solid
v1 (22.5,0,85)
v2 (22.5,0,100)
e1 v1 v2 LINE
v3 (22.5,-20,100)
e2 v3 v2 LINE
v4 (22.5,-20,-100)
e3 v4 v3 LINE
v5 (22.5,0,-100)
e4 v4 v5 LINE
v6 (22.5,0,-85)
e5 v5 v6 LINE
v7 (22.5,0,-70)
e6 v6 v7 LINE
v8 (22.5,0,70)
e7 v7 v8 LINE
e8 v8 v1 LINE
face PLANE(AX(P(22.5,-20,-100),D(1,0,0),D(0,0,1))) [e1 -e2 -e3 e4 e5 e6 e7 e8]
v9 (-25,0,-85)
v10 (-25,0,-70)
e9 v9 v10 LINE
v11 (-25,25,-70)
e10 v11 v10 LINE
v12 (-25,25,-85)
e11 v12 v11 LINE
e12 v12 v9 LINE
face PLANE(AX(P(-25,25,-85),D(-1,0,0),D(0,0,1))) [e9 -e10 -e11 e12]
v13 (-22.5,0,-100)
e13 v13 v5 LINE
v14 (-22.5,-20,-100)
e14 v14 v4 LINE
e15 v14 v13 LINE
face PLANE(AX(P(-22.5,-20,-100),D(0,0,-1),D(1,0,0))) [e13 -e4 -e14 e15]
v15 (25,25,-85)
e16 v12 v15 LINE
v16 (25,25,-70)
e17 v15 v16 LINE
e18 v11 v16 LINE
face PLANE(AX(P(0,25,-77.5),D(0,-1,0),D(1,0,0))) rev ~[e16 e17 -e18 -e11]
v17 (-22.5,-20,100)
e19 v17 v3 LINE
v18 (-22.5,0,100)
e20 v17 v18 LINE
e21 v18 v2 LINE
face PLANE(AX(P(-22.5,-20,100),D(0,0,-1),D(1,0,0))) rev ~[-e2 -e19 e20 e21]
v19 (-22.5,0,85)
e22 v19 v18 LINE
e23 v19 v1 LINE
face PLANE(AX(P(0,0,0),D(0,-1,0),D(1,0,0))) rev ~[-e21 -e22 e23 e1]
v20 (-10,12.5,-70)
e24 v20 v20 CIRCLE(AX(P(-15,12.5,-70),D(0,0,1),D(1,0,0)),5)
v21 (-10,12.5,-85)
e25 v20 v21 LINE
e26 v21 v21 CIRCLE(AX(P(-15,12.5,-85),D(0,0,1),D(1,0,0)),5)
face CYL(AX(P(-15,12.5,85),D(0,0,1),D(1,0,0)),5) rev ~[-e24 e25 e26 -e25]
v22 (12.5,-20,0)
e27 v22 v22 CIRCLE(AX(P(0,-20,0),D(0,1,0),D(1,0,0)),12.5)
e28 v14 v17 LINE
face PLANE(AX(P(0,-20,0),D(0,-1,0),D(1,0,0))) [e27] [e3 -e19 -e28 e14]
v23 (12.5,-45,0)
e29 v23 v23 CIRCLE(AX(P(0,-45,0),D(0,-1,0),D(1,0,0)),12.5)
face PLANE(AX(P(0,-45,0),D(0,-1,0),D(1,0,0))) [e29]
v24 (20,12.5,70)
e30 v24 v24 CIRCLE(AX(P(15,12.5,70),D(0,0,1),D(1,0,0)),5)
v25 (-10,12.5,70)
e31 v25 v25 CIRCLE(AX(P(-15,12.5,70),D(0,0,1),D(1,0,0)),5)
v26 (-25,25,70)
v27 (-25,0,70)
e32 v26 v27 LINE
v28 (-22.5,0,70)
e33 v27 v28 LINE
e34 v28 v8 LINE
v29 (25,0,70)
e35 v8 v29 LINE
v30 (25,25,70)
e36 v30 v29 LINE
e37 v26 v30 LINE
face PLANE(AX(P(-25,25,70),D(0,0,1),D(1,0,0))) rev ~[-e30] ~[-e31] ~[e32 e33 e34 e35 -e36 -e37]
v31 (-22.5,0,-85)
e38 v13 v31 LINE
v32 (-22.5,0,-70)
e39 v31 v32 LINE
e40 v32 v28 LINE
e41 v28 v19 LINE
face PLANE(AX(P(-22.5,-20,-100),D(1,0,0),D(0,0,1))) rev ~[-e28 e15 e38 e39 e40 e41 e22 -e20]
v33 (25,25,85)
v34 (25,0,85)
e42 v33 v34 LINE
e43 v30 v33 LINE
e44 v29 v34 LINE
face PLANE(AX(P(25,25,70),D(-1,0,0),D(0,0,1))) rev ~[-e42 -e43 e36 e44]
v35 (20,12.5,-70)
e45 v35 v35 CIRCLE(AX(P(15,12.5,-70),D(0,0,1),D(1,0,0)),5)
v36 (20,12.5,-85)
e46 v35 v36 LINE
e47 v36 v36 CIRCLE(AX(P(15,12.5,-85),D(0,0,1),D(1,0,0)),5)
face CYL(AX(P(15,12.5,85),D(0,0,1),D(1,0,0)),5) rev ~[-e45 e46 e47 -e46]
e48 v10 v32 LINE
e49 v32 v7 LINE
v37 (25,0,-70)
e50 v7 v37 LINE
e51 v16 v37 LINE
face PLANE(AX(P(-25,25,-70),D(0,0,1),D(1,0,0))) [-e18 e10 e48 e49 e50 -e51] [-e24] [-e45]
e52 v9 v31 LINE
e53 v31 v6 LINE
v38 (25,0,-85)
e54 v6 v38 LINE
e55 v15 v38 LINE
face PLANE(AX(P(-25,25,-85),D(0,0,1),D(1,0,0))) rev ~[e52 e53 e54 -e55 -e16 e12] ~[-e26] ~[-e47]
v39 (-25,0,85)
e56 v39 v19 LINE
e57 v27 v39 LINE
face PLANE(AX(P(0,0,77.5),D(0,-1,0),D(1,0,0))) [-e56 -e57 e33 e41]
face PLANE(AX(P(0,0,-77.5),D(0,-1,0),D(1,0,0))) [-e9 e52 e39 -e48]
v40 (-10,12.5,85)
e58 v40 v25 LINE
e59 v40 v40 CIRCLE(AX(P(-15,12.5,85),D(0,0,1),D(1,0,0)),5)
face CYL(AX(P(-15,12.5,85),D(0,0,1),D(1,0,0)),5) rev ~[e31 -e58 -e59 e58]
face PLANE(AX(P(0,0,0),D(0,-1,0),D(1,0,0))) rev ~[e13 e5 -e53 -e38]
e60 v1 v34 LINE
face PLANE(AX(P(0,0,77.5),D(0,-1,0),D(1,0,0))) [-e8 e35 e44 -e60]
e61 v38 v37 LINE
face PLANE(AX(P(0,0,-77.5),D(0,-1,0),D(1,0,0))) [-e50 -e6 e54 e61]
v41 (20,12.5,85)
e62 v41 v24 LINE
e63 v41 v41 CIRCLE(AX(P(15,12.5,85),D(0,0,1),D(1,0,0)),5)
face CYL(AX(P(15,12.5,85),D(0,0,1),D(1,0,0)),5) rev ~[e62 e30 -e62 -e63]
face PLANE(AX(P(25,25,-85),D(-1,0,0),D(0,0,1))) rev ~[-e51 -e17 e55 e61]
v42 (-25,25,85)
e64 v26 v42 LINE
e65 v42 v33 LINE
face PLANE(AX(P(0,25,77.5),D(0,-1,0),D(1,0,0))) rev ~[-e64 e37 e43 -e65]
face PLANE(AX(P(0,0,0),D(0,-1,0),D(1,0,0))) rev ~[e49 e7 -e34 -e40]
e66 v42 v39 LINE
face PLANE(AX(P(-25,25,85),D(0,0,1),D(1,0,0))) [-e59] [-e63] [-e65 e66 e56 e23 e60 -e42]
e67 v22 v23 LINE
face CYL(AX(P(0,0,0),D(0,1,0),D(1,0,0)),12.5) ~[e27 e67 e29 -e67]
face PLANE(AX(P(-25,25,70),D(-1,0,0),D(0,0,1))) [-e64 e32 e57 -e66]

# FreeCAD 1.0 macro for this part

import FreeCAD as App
import Part
import Sketcher

V = App.Vector
Q = App.Units.Quantity


def add_polygon(sketch, points):
    """Adds a closed chain of lines whose ends are joined by coincident constraints."""
    first, n = sketch.GeometryCount, len(points)
    for a, b in zip(points, points[1:] + points[:1]):
        sketch.addGeometry(Part.LineSegment(App.Vector(*a, 0), App.Vector(*b, 0)), False)
    for i in range(n):
        sketch.addConstraint(Sketcher.Constraint("Coincident", first + i, 2, first + (i + 1) % n, 1))

doc = App.newDocument("Part")
params = doc.addObject("Spreadsheet::Sheet", "Params")
for row, (alias, value) in enumerate([
    ("sketch1_diameter", "25 mm"),
    ("pad1_length", "45 mm"),
    ("sketch2_width", "45 mm"),
    ("sketch2_height", "200 mm"),
    ("pad2_length", "20 mm"),
    ("sketch3_width", "50 mm"),
    ("sketch3_height", "15 mm"),
    ("pad3_length", "25 mm"),
    ("sketch4_diameter", "10 mm"),
], start=1):
    params.set(f"A{row}", alias)
    params.set(f"B{row}", "=" + value)
    params.setAlias(f"B{row}", alias)

body = doc.addObject("PartDesign::Body", "Body")

# Sketch on XZ plane
sketch1 = doc.addObject("Sketcher::SketchObject", "Sketch")
body.addObject(sketch1)
sketch1.AttachmentSupport = (doc.XZ_Plane, [""])
sketch1.MapMode = "FlatFace"
sketch1.addGeometry(Part.Circle(V(0, 0, 0), V(0, 0, 1), 12), False)
sketch1.addConstraint([
    Sketcher.Constraint("Coincident", 0, 3, -1, 1),
    Sketcher.Constraint("Diameter", 0, Q("25 mm")),
])
sketch1.setExpression("Constraints[1]", "Params.sketch1_diameter")
pad1 = doc.addObject("PartDesign::Pad", "Pad")
body.addObject(pad1)
pad1.Profile = sketch1
pad1.setExpression("Length", "Params.pad1_length")

# Sketch on XZ plane
sketch2 = doc.addObject("Sketcher::SketchObject", "Sketch001")
body.addObject(sketch2)
sketch2.AttachmentSupport = (doc.XZ_Plane, [""])
sketch2.MapMode = "FlatFace"
sketch2.AttachmentOffset = App.Placement(V(0, 0, 20), App.Rotation())
add_polygon(sketch2, [(-22, 100), (-22, -100), (22, -100), (22, 100)])  # lines 0-3
sketch2.addConstraint([
    Sketcher.Constraint("Vertical", 0),
    Sketcher.Constraint("Horizontal", 1),
    Sketcher.Constraint("Vertical", 2),
    Sketcher.Constraint("Horizontal", 3),
    Sketcher.Constraint("Symmetric", 0, 2, 2, 2, -1, 1),
    Sketcher.Constraint("DistanceX", 1, 1, 1, 2, Q("45 mm")),
    Sketcher.Constraint("DistanceY", 0, 2, 0, 1, Q("200 mm")),
])
sketch2.setExpression("Constraints[9]", "Params.sketch2_width")
sketch2.setExpression("Constraints[10]", "Params.sketch2_height")
pad2 = doc.addObject("PartDesign::Pad", "Pad001")
body.addObject(pad2)
pad2.Profile = sketch2
pad2.setExpression("Length", "Params.pad2_length")
pad2.Reversed = True

# Sketch on XZ plane
sketch3 = doc.addObject("Sketcher::SketchObject", "Sketch002")
body.addObject(sketch3)
sketch3.AttachmentSupport = (doc.XZ_Plane, [""])
sketch3.MapMode = "FlatFace"
sketch3.AttachmentOffset = App.Placement(V(0, 0, -25), App.Rotation())
add_polygon(sketch3, [(-25, 85), (-25, 70), (25, 70), (25, 85)])  # lines 0-3
add_polygon(sketch3, [(-25, -70), (-25, -85), (25, -85), (25, -70)])  # lines 4-7
sketch3.addConstraint([
    Sketcher.Constraint("Vertical", 0),
    Sketcher.Constraint("Horizontal", 1),
    Sketcher.Constraint("Vertical", 2),
    Sketcher.Constraint("Horizontal", 3),
    Sketcher.Constraint("Vertical", 4),
    Sketcher.Constraint("Horizontal", 5),
    Sketcher.Constraint("Vertical", 6),
    Sketcher.Constraint("Horizontal", 7),
    Sketcher.Constraint("Symmetric", 2, 2, 4, 2, -1, 1),
    Sketcher.Constraint("Symmetric", 0, 2, 6, 2, -1, 1),
    Sketcher.Constraint("Vertical", 3, 2, 4, 2),
    Sketcher.Constraint("DistanceX", 1, 1, 1, 2, Q("50 mm")),
    Sketcher.Constraint("DistanceY", 0, 2, 0, 1, Q("15 mm")),
    Sketcher.Constraint("DistanceY", -1, 1, 0, 2, Q("70 mm")),
])
sketch3.setExpression("Constraints[19]", "Params.sketch3_width")
sketch3.setExpression("Constraints[20]", "Params.sketch3_height")
pad3 = doc.addObject("PartDesign::Pad", "Pad002")
body.addObject(pad3)
pad3.Profile = sketch3
pad3.setExpression("Length", "Params.pad3_length")

# Sketch on XY plane
sketch4 = doc.addObject("Sketcher::SketchObject", "Sketch003")
body.addObject(sketch4)
sketch4.AttachmentSupport = (doc.XY_Plane, [""])
sketch4.MapMode = "FlatFace"
sketch4.AttachmentOffset = App.Placement(V(0, 0, 85), App.Rotation())
sketch4.addGeometry([
    Part.Circle(V(15, 12, 0), V(0, 0, 1), 5),
    Part.Circle(V(-15, 12, 0), V(0, 0, 1), 5),
], False)
sketch4.addConstraint([
    Sketcher.Constraint("Equal", 0, 1),
    Sketcher.Constraint("Symmetric", 0, 3, 1, 3, -2),
    Sketcher.Constraint("Diameter", 0, Q("10 mm")),
    Sketcher.Constraint("DistanceX", -1, 1, 0, 3, Q("15 mm")),
    Sketcher.Constraint("DistanceY", -1, 1, 0, 3, Q("12.5 mm")),
])
sketch4.setExpression("Constraints[2]", "Params.sketch4_diameter")
pocket1 = doc.addObject("PartDesign::Pocket", "Pocket")
body.addObject(pocket1)
pocket1.Profile = sketch4
pocket1.Type = "ThroughAll"

doc.recompute()
